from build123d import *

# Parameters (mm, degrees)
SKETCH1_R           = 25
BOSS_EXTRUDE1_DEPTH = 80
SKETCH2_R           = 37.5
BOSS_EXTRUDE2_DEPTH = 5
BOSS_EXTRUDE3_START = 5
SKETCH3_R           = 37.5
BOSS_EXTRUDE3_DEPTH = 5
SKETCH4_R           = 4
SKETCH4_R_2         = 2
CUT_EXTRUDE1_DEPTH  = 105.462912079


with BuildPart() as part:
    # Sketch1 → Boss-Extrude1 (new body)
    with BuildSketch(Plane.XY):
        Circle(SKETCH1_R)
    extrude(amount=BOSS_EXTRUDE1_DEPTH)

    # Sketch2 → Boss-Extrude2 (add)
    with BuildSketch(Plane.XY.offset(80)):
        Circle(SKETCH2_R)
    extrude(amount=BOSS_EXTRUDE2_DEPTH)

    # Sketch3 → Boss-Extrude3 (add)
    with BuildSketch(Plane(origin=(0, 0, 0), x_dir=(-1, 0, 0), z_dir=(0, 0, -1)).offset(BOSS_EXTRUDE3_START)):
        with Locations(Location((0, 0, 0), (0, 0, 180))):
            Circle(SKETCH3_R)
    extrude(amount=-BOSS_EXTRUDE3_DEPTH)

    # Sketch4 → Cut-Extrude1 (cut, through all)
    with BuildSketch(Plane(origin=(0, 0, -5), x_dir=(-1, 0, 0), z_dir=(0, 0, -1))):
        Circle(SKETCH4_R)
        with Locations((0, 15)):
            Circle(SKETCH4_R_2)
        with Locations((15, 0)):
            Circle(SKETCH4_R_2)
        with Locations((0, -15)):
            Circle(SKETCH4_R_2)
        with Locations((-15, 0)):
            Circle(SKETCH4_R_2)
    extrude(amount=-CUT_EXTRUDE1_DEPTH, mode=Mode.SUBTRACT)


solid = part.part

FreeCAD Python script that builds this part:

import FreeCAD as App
import Part
import Sketcher
from FreeCAD import Vector
Q = App.Units.Quantity

doc = App.newDocument("Part")
body = doc.addObject("PartDesign::Body", "Body")

# Sketch on XY plane
sketch1 = body.newObject("Sketcher::SketchObject", "Sketch")
sketch1.AttachmentSupport = (doc.getObject("XY_Plane"), [""])
sketch1.MapMode = "FlatFace"
sketch1.addGeometry(Part.Circle(Vector(0, 0, 0), Vector(0, 0, 1), 25), False)
sketch1.addConstraint([
    Sketcher.Constraint("Coincident", 0, 3, -1, 1),
    Sketcher.Constraint("Diameter", 0, Q("50 mm")),
])
pad1 = body.newObject("PartDesign::Pad", "Pad")
pad1.Profile = sketch1
pad1.Length = 80

# Sketch on XY plane
sketch2 = body.newObject("Sketcher::SketchObject", "Sketch001")
sketch2.AttachmentSupport = (doc.getObject("XY_Plane"), [""])
sketch2.MapMode = "FlatFace"
sketch2.AttachmentOffset = App.Placement(Vector(0, 0, 80), App.Rotation())
sketch2.addGeometry(Part.Circle(Vector(0, 0, 0), Vector(0, 0, 1), 37.5), False)
sketch2.addConstraint([
    Sketcher.Constraint("Coincident", 0, 3, -1, 1),
    Sketcher.Constraint("Diameter", 0, Q("75 mm")),
])
pad2 = body.newObject("PartDesign::Pad", "Pad001")
pad2.Profile = sketch2
pad2.Length = 5

# Sketch on XY plane
sketch3 = body.newObject("Sketcher::SketchObject", "Sketch002")
sketch3.AttachmentSupport = (doc.getObject("XY_Plane"), [""])
sketch3.MapMode = "FlatFace"
sketch3.AttachmentOffset = App.Placement(Vector(0, 0, -5), App.Rotation())
sketch3.addGeometry(Part.Circle(Vector(0, 0, 0), Vector(0, 0, 1), 37.5), False)
sketch3.addConstraint([
    Sketcher.Constraint("Coincident", 0, 3, -1, 1),
    Sketcher.Constraint("Diameter", 0, Q("75 mm")),
])
pad3 = body.newObject("PartDesign::Pad", "Pad002")
pad3.Profile = sketch3
pad3.Length = 5

# Sketch on XY plane
sketch4 = body.newObject("Sketcher::SketchObject", "Sketch003")
sketch4.AttachmentSupport = (doc.getObject("XY_Plane"), [""])
sketch4.MapMode = "FlatFace"
sketch4.AttachmentOffset = App.Placement(Vector(0, 0, -5), App.Rotation())
sketch4.addGeometry([
    Part.Circle(Vector(0, 0, 0), Vector(0, 0, 1), 4),  # 0
    Part.Circle(Vector(0, 15, 0), Vector(0, 0, 1), 2),  # 1
    Part.Circle(Vector(-15, 0, 0), Vector(0, 0, 1), 2),  # 2
    Part.Circle(Vector(0, -15, 0), Vector(0, 0, 1), 2),  # 3
    Part.Circle(Vector(15, 0, 0), Vector(0, 0, 1), 2),  # 4
], False)
sketch4.addConstraint([
    Sketcher.Constraint("Coincident", 0, 3, -1, 1),
    Sketcher.Constraint("Equal", 1, 2),
    Sketcher.Constraint("Equal", 2, 3),
    Sketcher.Constraint("Equal", 3, 4),
    Sketcher.Constraint("Symmetric", 1, 3, 3, 3, -1, 1),
    Sketcher.Constraint("Symmetric", 2, 3, 4, 3, -1, 1),
    Sketcher.Constraint("PointOnObject", 1, 3, -2),
    Sketcher.Constraint("PointOnObject", 2, 3, -1),
    Sketcher.Constraint("Diameter", 0, Q("8 mm")),
    Sketcher.Constraint("Diameter", 1, Q("4 mm")),
    Sketcher.Constraint("DistanceY", -1, 1, 1, 3, Q("15 mm")),
    Sketcher.Constraint("DistanceX", 2, 3, -1, 1, Q("15 mm")),
])
pocket1 = body.newObject("PartDesign::Pocket", "Pocket")
pocket1.Profile = sketch4
pocket1.Type = "ThroughAll"
pocket1.Reversed = True

doc.recompute()
